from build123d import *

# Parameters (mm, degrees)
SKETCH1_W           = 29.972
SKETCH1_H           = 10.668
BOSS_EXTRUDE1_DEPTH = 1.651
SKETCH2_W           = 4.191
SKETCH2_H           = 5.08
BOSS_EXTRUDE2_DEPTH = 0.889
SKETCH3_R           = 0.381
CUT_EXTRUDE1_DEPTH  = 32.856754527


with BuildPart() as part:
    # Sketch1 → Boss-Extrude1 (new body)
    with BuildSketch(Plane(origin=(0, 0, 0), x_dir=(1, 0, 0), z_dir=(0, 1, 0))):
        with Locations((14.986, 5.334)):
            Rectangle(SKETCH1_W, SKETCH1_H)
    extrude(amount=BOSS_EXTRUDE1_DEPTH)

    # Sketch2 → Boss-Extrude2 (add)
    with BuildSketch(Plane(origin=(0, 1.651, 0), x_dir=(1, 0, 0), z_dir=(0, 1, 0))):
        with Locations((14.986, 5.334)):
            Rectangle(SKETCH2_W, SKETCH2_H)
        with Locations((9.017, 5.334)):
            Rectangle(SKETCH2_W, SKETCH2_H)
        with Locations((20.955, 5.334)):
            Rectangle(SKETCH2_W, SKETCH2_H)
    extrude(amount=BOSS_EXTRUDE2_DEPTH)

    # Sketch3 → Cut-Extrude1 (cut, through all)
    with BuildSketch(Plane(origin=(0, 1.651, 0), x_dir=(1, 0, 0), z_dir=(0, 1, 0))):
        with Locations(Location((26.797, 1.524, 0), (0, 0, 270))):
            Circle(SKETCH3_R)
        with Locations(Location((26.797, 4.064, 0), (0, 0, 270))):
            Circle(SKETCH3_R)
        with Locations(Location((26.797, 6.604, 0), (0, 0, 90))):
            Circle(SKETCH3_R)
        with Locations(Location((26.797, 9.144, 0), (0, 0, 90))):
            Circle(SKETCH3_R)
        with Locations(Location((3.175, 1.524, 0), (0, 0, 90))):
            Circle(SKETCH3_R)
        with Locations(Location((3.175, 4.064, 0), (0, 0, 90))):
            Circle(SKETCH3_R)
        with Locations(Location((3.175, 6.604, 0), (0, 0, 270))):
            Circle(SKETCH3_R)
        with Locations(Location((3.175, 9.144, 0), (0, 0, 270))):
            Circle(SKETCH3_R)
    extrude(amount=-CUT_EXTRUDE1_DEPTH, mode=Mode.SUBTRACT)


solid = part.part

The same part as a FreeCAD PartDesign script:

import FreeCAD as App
import Part
import Sketcher
from FreeCAD import Vector
Q = App.Units.Quantity


def add_polygon(sketch, points):
    """Adds a closed chain of lines whose ends are joined by coincident constraints."""
    first, n = sketch.GeometryCount, len(points)
    for a, b in zip(points, points[1:] + points[:1]):
        sketch.addGeometry(Part.LineSegment(App.Vector(*a, 0), App.Vector(*b, 0)), False)
    for i in range(n):
        sketch.addConstraint(Sketcher.Constraint("Coincident", first + i, 2, first + (i + 1) % n, 1))

doc = App.newDocument("Part")
body = doc.addObject("PartDesign::Body", "Body")

# Sketch on XZ plane
sketch1 = doc.addObject("Sketcher::SketchObject", "Sketch")
body.addObject(sketch1)
sketch1.AttachmentSupport = (doc.XZ_Plane, [""])
sketch1.MapMode = "FlatFace"
add_polygon(sketch1, [(0, -11), (0, 0), (30, 0), (30, -11)])  # lines 0-3
sketch1.addConstraint([
    Sketcher.Constraint("Vertical", 0),
    Sketcher.Constraint("Horizontal", 1),
    Sketcher.Constraint("Vertical", 2),
    Sketcher.Constraint("Horizontal", 3),
    Sketcher.Constraint("Coincident", 0, 2, -1, 1),
    Sketcher.Constraint("DistanceX", 1, 1, 1, 2, Q("1.18 in")),
    Sketcher.Constraint("DistanceY", 0, 1, 0, 2, Q("0.42 in")),
])
pad1 = doc.addObject("PartDesign::Pad", "Pad")
body.addObject(pad1)
pad1.Profile = sketch1
pad1.Length = Q("0.065 in")
pad1.Reversed = True

# Sketch on XZ plane
sketch2 = doc.addObject("Sketcher::SketchObject", "Sketch001")
body.addObject(sketch2)
sketch2.AttachmentSupport = (doc.XZ_Plane, [""])
sketch2.MapMode = "FlatFace"
sketch2.AttachmentOffset = App.Placement(Vector(0, 0, -0.065 * 25.4), App.Rotation())
add_polygon(sketch2, [(12.9, -7.9), (12.9, -2.8), (17.1, -2.8), (17.1, -7.9)])  # lines 0-3
add_polygon(sketch2, [(6.9, -7.9), (6.9, -2.8), (11.1, -2.8), (11.1, -7.9)])  # lines 4-7
add_polygon(sketch2, [(18.9, -7.9), (18.9, -2.8), (23.1, -2.8), (23.1, -7.9)])  # lines 8-11
sketch2.addConstraint([
    Sketcher.Constraint("Vertical", 0),
    Sketcher.Constraint("Horizontal", 1),
    Sketcher.Constraint("Vertical", 2),
    Sketcher.Constraint("Horizontal", 3),
    Sketcher.Constraint("Vertical", 4),
    Sketcher.Constraint("Horizontal", 5),
    Sketcher.Constraint("Vertical", 6),
    Sketcher.Constraint("Horizontal", 7),
    Sketcher.Constraint("Vertical", 8),
    Sketcher.Constraint("Horizontal", 9),
    Sketcher.Constraint("Vertical", 10),
    Sketcher.Constraint("Horizontal", 11),
    Sketcher.Constraint("Horizontal", 1, 2, 4, 2),
    Sketcher.Constraint("Horizontal", 3, 2, 6, 2),
    Sketcher.Constraint("Horizontal", 5, 2, 8, 2),
    Sketcher.Constraint("Horizontal", 7, 2, 10, 2),
    Sketcher.Constraint("Equal", 3, 5),
    Sketcher.Constraint("Equal", 7, 9),
    Sketcher.Constraint("DistanceY", 0, 1, 0, 2, Q("0.2 in")),
    Sketcher.Constraint("DistanceX", 4, 2, 1, 2, Q("0.4 in")),
    Sketcher.Constraint("DistanceX", 0, 2, 9, 2, Q("0.4 in")),
    Sketcher.Constraint("DistanceX", 1, 1, 1, 2, Q("0.165 in")),
    Sketcher.Constraint("DistanceY", 0, 2, -1, 1, Q("0.11 in")),
    Sketcher.Constraint("DistanceX", -1, 1, 5, 2, Q("0.4375 in")),
])
pad2 = doc.addObject("PartDesign::Pad", "Pad001")
body.addObject(pad2)
pad2.Profile = sketch2
pad2.Length = Q("0.035 in")
pad2.Reversed = True

# Sketch on XZ plane
sketch3 = doc.addObject("Sketcher::SketchObject", "Sketch002")
body.addObject(sketch3)
sketch3.AttachmentSupport = (doc.XZ_Plane, [""])
sketch3.MapMode = "FlatFace"
sketch3.AttachmentOffset = App.Placement(Vector(0, 0, -0.065 * 25.4), App.Rotation())
sketch3.addGeometry([
    Part.Circle(Vector(26.8, -1.52, 0), Vector(0, 0, 1), 0.38),  # 0
    Part.Circle(Vector(26.8, -4.06, 0), Vector(0, 0, 1), 0.38),  # 1
    Part.Circle(Vector(26.8, -6.6, 0), Vector(0, 0, 1), 0.38),  # 2
    Part.Circle(Vector(26.8, -9.14, 0), Vector(0, 0, 1), 0.38),  # 3
    Part.Circle(Vector(3.17, -1.52, 0), Vector(0, 0, 1), 0.38),  # 4
    Part.Circle(Vector(3.17, -4.06, 0), Vector(0, 0, 1), 0.38),  # 5
    Part.Circle(Vector(3.17, -6.6, 0), Vector(0, 0, 1), 0.38),  # 6
    Part.Circle(Vector(3.17, -9.14, 0), Vector(0, 0, 1), 0.38),  # 7
], False)
sketch3.addConstraint([
    Sketcher.Constraint("Equal", 0, 1),
    Sketcher.Constraint("Equal", 1, 2),
    Sketcher.Constraint("Equal", 2, 3),
    Sketcher.Constraint("Equal", 3, 4),
    Sketcher.Constraint("Equal", 4, 5),
    Sketcher.Constraint("Equal", 5, 6),
    Sketcher.Constraint("Equal", 6, 7),
    Sketcher.Constraint("Horizontal", 0, 3, 4, 3),
    Sketcher.Constraint("Horizontal", 1, 3, 5, 3),
    Sketcher.Constraint("Horizontal", 2, 3, 6, 3),
    Sketcher.Constraint("Horizontal", 3, 3, 7, 3),
    Sketcher.Constraint("Vertical", 0, 3, 1, 3),
    Sketcher.Constraint("Vertical", 1, 3, 2, 3),
    Sketcher.Constraint("Vertical", 2, 3, 3, 3),
    Sketcher.Constraint("Vertical", 4, 3, 5, 3),
    Sketcher.Constraint("Vertical", 5, 3, 6, 3),
    Sketcher.Constraint("Vertical", 6, 3, 7, 3),
    Sketcher.Constraint("Diameter", 0, Q("0.03 in")),
    Sketcher.Constraint("DistanceY", 1, 3, 0, 3, Q("0.1 in")),
    Sketcher.Constraint("DistanceY", 2, 3, 1, 3, Q("0.1 in")),
    Sketcher.Constraint("DistanceY", 3, 3, 2, 3, Q("0.1 in")),
    Sketcher.Constraint("DistanceY", 0, 3, -1, 1, Q("0.06 in")),
    Sketcher.Constraint("DistanceX", 4, 3, 0, 3, Q("0.93 in")),
    Sketcher.Constraint("DistanceX", -1, 1, 0, 3, Q("1.055 in")),
])
pocket1 = doc.addObject("PartDesign::Pocket", "Pocket")
body.addObject(pocket1)
pocket1.Profile = sketch3
pocket1.Type = "ThroughAll"
pocket1.Reversed = True

doc.recompute()
